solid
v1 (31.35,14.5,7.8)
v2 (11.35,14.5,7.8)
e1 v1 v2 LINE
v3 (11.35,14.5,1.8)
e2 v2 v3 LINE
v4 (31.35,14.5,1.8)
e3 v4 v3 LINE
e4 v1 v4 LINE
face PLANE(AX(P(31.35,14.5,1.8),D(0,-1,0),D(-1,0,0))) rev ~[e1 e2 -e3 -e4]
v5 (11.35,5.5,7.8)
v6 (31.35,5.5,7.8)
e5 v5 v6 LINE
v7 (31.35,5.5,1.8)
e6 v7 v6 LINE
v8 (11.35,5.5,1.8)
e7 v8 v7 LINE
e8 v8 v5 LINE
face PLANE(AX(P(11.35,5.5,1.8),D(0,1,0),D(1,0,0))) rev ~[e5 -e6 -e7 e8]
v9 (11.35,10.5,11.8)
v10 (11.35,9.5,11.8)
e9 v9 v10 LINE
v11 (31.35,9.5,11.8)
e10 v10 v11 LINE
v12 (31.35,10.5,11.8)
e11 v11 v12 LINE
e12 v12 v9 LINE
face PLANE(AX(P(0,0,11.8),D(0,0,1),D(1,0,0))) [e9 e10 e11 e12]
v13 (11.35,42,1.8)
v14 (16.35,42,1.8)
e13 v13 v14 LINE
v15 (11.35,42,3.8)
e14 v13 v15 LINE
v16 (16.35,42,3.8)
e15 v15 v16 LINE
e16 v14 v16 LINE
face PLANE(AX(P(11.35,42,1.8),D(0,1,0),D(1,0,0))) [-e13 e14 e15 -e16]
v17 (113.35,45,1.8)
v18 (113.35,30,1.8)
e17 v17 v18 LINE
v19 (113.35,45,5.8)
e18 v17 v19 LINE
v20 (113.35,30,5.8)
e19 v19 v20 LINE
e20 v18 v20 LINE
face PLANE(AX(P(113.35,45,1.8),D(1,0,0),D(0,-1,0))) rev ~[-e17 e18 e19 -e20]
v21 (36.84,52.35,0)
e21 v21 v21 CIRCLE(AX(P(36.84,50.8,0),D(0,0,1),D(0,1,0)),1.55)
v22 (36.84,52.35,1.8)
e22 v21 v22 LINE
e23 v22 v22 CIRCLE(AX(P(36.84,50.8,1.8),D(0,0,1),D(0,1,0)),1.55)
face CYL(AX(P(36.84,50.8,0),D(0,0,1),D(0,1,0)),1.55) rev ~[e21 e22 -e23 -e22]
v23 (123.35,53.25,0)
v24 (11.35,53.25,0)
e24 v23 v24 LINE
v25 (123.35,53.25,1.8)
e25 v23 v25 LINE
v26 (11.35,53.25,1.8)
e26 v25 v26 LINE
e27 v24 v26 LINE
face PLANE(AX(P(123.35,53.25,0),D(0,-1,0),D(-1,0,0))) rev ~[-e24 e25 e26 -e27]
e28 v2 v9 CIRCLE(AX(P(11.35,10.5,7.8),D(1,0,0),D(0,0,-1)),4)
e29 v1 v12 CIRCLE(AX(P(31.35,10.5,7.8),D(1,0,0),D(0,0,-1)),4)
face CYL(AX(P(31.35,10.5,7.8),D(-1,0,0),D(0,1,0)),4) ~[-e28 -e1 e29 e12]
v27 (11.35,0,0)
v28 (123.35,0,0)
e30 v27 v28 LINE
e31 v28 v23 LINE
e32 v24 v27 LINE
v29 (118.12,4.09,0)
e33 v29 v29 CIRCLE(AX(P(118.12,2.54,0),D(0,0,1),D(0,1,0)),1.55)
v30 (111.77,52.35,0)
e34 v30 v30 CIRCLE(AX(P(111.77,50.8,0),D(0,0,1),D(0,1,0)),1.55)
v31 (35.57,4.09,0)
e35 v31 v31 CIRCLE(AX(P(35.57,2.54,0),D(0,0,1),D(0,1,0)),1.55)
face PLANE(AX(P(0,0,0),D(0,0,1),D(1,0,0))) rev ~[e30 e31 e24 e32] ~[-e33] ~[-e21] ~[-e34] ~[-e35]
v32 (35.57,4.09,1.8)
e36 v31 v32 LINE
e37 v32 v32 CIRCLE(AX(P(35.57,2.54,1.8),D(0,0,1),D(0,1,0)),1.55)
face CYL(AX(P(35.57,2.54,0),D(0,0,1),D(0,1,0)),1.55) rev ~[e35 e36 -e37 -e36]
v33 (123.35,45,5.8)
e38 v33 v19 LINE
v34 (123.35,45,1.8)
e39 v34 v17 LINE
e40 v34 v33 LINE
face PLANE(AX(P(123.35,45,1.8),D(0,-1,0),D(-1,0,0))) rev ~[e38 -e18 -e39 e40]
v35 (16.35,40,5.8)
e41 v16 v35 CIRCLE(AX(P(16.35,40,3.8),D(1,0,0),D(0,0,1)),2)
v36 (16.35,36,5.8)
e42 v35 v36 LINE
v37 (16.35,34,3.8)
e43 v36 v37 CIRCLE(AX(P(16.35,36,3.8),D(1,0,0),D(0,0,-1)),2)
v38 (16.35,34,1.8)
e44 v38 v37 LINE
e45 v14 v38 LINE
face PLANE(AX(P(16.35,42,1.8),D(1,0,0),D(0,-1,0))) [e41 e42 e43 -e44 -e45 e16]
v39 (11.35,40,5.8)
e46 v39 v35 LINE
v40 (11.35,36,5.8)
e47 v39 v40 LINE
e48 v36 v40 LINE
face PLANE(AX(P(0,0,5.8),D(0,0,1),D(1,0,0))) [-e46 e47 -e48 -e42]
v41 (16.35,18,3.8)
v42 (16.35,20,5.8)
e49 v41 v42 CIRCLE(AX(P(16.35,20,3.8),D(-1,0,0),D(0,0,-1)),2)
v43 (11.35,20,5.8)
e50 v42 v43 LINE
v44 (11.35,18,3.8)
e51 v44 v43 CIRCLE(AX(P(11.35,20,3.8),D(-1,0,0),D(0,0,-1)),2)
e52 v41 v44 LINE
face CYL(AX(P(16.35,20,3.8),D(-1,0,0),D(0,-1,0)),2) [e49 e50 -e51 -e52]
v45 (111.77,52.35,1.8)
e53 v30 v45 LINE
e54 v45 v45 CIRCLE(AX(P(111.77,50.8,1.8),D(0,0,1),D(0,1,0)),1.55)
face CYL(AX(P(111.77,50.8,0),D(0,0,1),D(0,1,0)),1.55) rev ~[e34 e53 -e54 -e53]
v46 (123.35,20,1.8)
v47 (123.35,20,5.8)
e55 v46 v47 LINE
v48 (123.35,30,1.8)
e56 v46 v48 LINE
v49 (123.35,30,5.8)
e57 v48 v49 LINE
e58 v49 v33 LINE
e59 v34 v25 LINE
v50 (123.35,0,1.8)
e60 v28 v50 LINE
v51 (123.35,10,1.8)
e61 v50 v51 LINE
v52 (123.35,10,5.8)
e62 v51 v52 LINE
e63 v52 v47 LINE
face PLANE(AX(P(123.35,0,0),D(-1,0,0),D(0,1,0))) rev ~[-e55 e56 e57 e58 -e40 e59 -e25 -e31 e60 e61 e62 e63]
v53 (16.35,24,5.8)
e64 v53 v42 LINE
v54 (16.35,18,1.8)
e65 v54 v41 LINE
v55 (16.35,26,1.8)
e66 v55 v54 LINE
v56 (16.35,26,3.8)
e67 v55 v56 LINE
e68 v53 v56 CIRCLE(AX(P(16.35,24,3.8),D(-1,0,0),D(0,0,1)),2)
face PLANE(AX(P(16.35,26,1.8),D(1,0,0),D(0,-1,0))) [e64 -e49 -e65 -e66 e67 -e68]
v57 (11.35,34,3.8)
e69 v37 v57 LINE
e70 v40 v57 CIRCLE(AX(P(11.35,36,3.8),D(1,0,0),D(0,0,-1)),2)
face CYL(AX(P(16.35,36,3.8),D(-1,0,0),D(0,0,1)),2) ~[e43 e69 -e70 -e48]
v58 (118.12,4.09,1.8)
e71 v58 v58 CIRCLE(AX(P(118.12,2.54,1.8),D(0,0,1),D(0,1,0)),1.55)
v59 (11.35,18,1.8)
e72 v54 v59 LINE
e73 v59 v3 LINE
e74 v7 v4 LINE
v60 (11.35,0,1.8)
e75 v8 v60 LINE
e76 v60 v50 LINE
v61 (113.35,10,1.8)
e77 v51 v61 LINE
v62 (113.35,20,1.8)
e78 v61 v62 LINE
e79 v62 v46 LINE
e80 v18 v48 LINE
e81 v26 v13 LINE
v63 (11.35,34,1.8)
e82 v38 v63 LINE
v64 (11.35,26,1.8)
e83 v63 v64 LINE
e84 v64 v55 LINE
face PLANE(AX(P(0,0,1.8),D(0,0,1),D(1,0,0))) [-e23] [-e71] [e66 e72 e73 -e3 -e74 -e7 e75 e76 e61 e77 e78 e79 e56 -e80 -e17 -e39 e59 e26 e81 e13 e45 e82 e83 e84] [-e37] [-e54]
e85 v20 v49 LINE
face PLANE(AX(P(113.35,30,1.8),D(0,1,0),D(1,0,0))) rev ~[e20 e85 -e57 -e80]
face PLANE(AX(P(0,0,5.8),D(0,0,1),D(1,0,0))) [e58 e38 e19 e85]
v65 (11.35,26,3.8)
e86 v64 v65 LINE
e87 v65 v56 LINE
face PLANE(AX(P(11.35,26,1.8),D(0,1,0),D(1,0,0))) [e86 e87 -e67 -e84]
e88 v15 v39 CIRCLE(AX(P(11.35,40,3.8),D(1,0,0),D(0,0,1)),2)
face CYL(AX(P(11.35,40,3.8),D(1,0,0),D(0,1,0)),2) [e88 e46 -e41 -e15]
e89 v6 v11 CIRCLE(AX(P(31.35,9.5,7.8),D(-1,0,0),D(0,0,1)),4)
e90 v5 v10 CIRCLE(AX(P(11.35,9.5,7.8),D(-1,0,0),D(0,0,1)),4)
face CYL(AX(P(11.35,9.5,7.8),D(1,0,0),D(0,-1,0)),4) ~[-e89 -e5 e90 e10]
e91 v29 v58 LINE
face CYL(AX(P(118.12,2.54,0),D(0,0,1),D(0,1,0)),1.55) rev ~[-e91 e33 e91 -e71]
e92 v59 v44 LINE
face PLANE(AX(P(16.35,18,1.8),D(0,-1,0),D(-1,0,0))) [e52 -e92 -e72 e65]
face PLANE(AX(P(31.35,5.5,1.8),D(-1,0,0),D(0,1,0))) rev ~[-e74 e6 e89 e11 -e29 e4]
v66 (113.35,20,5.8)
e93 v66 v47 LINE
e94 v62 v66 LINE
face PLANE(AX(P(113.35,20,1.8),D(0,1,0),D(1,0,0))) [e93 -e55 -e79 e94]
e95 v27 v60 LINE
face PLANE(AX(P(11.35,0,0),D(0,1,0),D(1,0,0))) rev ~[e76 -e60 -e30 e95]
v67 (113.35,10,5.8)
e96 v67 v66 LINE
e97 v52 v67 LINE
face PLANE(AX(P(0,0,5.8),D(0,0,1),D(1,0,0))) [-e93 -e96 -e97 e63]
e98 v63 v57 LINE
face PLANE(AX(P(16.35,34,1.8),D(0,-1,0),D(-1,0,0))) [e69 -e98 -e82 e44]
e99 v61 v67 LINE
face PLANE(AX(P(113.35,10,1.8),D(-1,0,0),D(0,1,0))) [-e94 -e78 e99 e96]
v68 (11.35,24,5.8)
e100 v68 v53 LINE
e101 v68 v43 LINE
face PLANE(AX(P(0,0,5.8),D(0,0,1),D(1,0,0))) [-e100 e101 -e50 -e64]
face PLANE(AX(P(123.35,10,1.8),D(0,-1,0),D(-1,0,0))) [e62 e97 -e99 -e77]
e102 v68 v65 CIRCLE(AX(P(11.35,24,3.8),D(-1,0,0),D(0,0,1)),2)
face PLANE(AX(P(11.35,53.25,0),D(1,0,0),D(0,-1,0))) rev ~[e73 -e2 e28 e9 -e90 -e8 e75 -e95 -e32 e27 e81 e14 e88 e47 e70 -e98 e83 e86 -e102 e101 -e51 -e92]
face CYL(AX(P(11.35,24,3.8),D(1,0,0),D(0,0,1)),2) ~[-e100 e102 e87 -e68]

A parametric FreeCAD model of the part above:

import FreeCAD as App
import Part
import Sketcher

V = App.Vector
Q = App.Units.Quantity


def edges_at(feature, points):
    """Names of the edges that pass closest to the given points."""
    edges = feature.Shape.Edges
    near = lambda p: min(range(len(edges)), key=lambda i: edges[i].distToShape(Part.Vertex(*p))[0])
    return sorted({f"Edge{near(p) + 1}" for p in points})

doc = App.newDocument("Part")
body = doc.addObject("PartDesign::Body", "Body")

# Sketch on XY plane
sketch1 = body.newObject("Sketcher::SketchObject", "Sketch")
sketch1.AttachmentSupport = (doc.getObject("XY_Plane"), [""])
sketch1.MapMode = "FlatFace"
sketch1.addGeometry([
    Part.LineSegment(V(11, 53, 0), V(11, 0, 0)),
    Part.LineSegment(V(11, 0, 0), V(123, 0, 0)),
    Part.LineSegment(V(123, 0, 0), V(123, 53, 0)),
    Part.LineSegment(V(123, 53, 0), V(11, 53, 0)),
], False)
sketch1.addConstraint([
    Sketcher.Constraint("Coincident", 0, 2, 1, 1),
    Sketcher.Constraint("Coincident", 1, 2, 2, 1),
    Sketcher.Constraint("Coincident", 2, 2, 3, 1),
    Sketcher.Constraint("Coincident", 3, 2, 0, 1),
    Sketcher.Constraint("Vertical", 0),
    Sketcher.Constraint("Horizontal", 1),
    Sketcher.Constraint("Vertical", 2),
    Sketcher.Constraint("Horizontal", 3),
    Sketcher.Constraint("PointOnObject", 0, 2, -1),
    Sketcher.Constraint("DistanceX", 1, 1, 1, 2, Q("112 mm")),
    Sketcher.Constraint("DistanceY", 0, 2, 0, 1, Q("53.25 mm")),
    Sketcher.Constraint("DistanceX", -1, 1, 0, 2, Q("11.35 mm")),
])
pad1 = body.newObject("PartDesign::Pad", "Pad")
pad1.Profile = sketch1
pad1.Length = 1.8

# Sketch on XY plane
sketch2 = body.newObject("Sketcher::SketchObject", "Sketch001")
sketch2.AttachmentSupport = (doc.getObject("XY_Plane"), [""])
sketch2.MapMode = "FlatFace"
sketch2.addGeometry([
    Part.Circle(V(36.8, 50.8, 0), V(0, 0, 1), 1.6),
    Part.Circle(V(111.8, 50.8, 0), V(0, 0, 1), 1.6),
    Part.Circle(V(118.1, 2.5, 0), V(0, 0, 1), 1.6),
    Part.Circle(V(35.6, 2.5, 0), V(0, 0, 1), 1.6),
], False)
sketch2.addConstraint([
    Sketcher.Constraint("Equal", 0, 1),
    Sketcher.Constraint("Equal", 1, 2),
    Sketcher.Constraint("Equal", 2, 3),
    Sketcher.Constraint("Horizontal", 0, 3, 1, 3),
    Sketcher.Constraint("Horizontal", 2, 3, 3, 3),
    Sketcher.Constraint("Diameter", 0, Q("3.1 mm")),
    Sketcher.Constraint("DistanceY", -1, 1, 0, 3, Q("50.8 mm")),
    Sketcher.Constraint("DistanceX", 3, 3, 1, 3, Q("76.2 mm")),
    Sketcher.Constraint("DistanceX", -1, 1, 0, 3, Q("36.84 mm")),
    Sketcher.Constraint("DistanceX", -1, 1, 1, 3, Q("111.77 mm")),
    Sketcher.Constraint("DistanceX", -1, 1, 2, 3, Q("118.12 mm")),
    Sketcher.Constraint("DistanceY", -1, 1, 2, 3, Q("2.54 mm")),
])
doc.recompute()
hole = body.newObject("PartDesign::Hole", "Hole")
hole.Profile = sketch2
hole.ThreadType = "None"
hole.Diameter = 3.1
hole.DepthType = "ThroughAll"
hole.Reversed = True

# Sketch on XY plane
sketch3 = body.newObject("Sketcher::SketchObject", "Sketch002")
sketch3.AttachmentSupport = (doc.getObject("XY_Plane"), [""])
sketch3.MapMode = "FlatFace"
sketch3.AttachmentOffset = App.Placement(V(0, 0, 1.8), App.Rotation())
sketch3.addGeometry([
    Part.LineSegment(V(113, 30, 0), V(123, 30, 0)),  # 0
    Part.LineSegment(V(123, 30, 0), V(123, 45, 0)),  # 1
    Part.LineSegment(V(123, 45, 0), V(113, 45, 0)),  # 2
    Part.LineSegment(V(113, 45, 0), V(113, 30, 0)),  # 3
    Part.LineSegment(V(113, 10, 0), V(123, 10, 0)),  # 4
    Part.LineSegment(V(123, 10, 0), V(123, 20, 0)),  # 5
    Part.LineSegment(V(123, 20, 0), V(113, 20, 0)),  # 6
    Part.LineSegment(V(113, 20, 0), V(113, 10, 0)),  # 7
    Part.LineSegment(V(11, 42, 0), V(11, 34, 0)),  # 8
    Part.LineSegment(V(11, 34, 0), V(16, 34, 0)),  # 9
    Part.LineSegment(V(16, 34, 0), V(16, 42, 0)),  # 10
    Part.LineSegment(V(16, 42, 0), V(11, 42, 0)),  # 11
    Part.LineSegment(V(11, 26, 0), V(11, 18, 0)),  # 12
    Part.LineSegment(V(11, 18, 0), V(16, 18, 0)),  # 13
    Part.LineSegment(V(16, 18, 0), V(16, 26, 0)),  # 14
    Part.LineSegment(V(16, 26, 0), V(11, 26, 0)),  # 15
    Part.LineSegment(V(11, 14, 0), V(11, 6, 0)),  # 16
    Part.LineSegment(V(11, 6, 0), V(31, 6, 0)),  # 17
    Part.LineSegment(V(31, 6, 0), V(31, 14, 0)),  # 18
    Part.LineSegment(V(31, 14, 0), V(11, 14, 0)),  # 19
], False)
sketch3.addConstraint([
    Sketcher.Constraint("Coincident", 0, 2, 1, 1),
    Sketcher.Constraint("Coincident", 1, 2, 2, 1),
    Sketcher.Constraint("Coincident", 2, 2, 3, 1),
    Sketcher.Constraint("Coincident", 3, 2, 0, 1),
    Sketcher.Constraint("Coincident", 4, 2, 5, 1),
    Sketcher.Constraint("Coincident", 5, 2, 6, 1),
    Sketcher.Constraint("Coincident", 6, 2, 7, 1),
    Sketcher.Constraint("Coincident", 7, 2, 4, 1),
    Sketcher.Constraint("Coincident", 8, 2, 9, 1),
    Sketcher.Constraint("Coincident", 9, 2, 10, 1),
    Sketcher.Constraint("Coincident", 10, 2, 11, 1),
    Sketcher.Constraint("Coincident", 11, 2, 8, 1),
    Sketcher.Constraint("Coincident", 12, 2, 13, 1),
    Sketcher.Constraint("Coincident", 13, 2, 14, 1),
    Sketcher.Constraint("Coincident", 14, 2, 15, 1),
    Sketcher.Constraint("Coincident", 15, 2, 12, 1),
    Sketcher.Constraint("Coincident", 16, 2, 17, 1),
    Sketcher.Constraint("Coincident", 17, 2, 18, 1),
    Sketcher.Constraint("Coincident", 18, 2, 19, 1),
    Sketcher.Constraint("Coincident", 19, 2, 16, 1),
    Sketcher.Constraint("Horizontal", 0),
    Sketcher.Constraint("Vertical", 1),
    Sketcher.Constraint("Horizontal", 2),
    Sketcher.Constraint("Vertical", 3),
    Sketcher.Constraint("Horizontal", 4),
    Sketcher.Constraint("Vertical", 5),
    Sketcher.Constraint("Horizontal", 6),
    Sketcher.Constraint("Vertical", 7),
    Sketcher.Constraint("Vertical", 8),
    Sketcher.Constraint("Horizontal", 9),
    Sketcher.Constraint("Vertical", 10),
    Sketcher.Constraint("Horizontal", 11),
    Sketcher.Constraint("Vertical", 12),
    Sketcher.Constraint("Horizontal", 13),
    Sketcher.Constraint("Vertical", 14),
    Sketcher.Constraint("Horizontal", 15),
    Sketcher.Constraint("Vertical", 16),
    Sketcher.Constraint("Horizontal", 17),
    Sketcher.Constraint("Vertical", 18),
    Sketcher.Constraint("Horizontal", 19),
    Sketcher.Constraint("Vertical", 1, 2, 4, 2),
    Sketcher.Constraint("Vertical", 3, 2, 6, 2),
    Sketcher.Constraint("Vertical", 11, 2, 12, 2),
    Sketcher.Constraint("Vertical", 10, 2, 13, 2),
    Sketcher.Constraint("Vertical", 15, 2, 16, 2),
    Sketcher.Constraint("Equal", 6, 5),
    Sketcher.Constraint("Equal", 10, 12),
    Sketcher.Constraint("DistanceX", 0, 1, 0, 2, Q("10 mm")),
    Sketcher.Constraint("DistanceX", 9, 1, 9, 2, Q("5 mm")),
    Sketcher.Constraint("DistanceX", 17, 1, 17, 2, Q("20 mm")),
    Sketcher.Constraint("DistanceY", 1, 1, 1, 2, Q("15 mm")),
    Sketcher.Constraint("DistanceY", 8, 2, 8, 1, Q("8 mm")),
    Sketcher.Constraint("DistanceY", 16, 2, 16, 1, Q("9 mm")),
    Sketcher.Constraint("DistanceY", -1, 1, 0, 2, Q("30 mm")),
    Sketcher.Constraint("DistanceY", -1, 1, 4, 2, Q("10 mm")),
    Sketcher.Constraint("DistanceY", -1, 1, 8, 2, Q("34 mm")),
    Sketcher.Constraint("DistanceY", -1, 1, 12, 2, Q("18 mm")),
    Sketcher.Constraint("DistanceY", -1, 1, 16, 2, Q("5.5 mm")),
    Sketcher.Constraint("DistanceX", 8, 2, 3, 2, Q("102 mm")),
    Sketcher.Constraint("DistanceX", -1, 1, 0, 2, Q("123.35 mm")),
])
pad2 = body.newObject("PartDesign::Pad", "Pad001")
pad2.Profile = sketch3
pad2.Length = 4

# Sketch on XY plane
sketch4 = body.newObject("Sketcher::SketchObject", "Sketch003")
sketch4.AttachmentSupport = (doc.getObject("XY_Plane"), [""])
sketch4.MapMode = "FlatFace"
sketch4.AttachmentOffset = App.Placement(V(0, 0, 1.8), App.Rotation())
sketch4.addGeometry([
    Part.LineSegment(V(11, 14, 0), V(11, 6, 0)),
    Part.LineSegment(V(11, 6, 0), V(31, 6, 0)),
    Part.LineSegment(V(31, 6, 0), V(31, 14, 0)),
    Part.LineSegment(V(31, 14, 0), V(11, 14, 0)),
], False)
sketch4.addConstraint([
    Sketcher.Constraint("Coincident", 0, 2, 1, 1),
    Sketcher.Constraint("Coincident", 1, 2, 2, 1),
    Sketcher.Constraint("Coincident", 2, 2, 3, 1),
    Sketcher.Constraint("Coincident", 3, 2, 0, 1),
    Sketcher.Constraint("Vertical", 0),
    Sketcher.Constraint("Horizontal", 1),
    Sketcher.Constraint("Vertical", 2),
    Sketcher.Constraint("Horizontal", 3),
    Sketcher.Constraint("DistanceX", 1, 1, 1, 2, Q("20 mm")),
    Sketcher.Constraint("DistanceY", 0, 2, 0, 1, Q("9 mm")),
    Sketcher.Constraint("DistanceY", -1, 1, 0, 2, Q("5.5 mm")),
    Sketcher.Constraint("DistanceX", -1, 1, 0, 2, Q("11.35 mm")),
])
pad3 = body.newObject("PartDesign::Pad", "Pad002")
pad3.Profile = sketch4
pad3.Length = 10
doc.recompute()

fillet = body.newObject("PartDesign::Fillet", "Fillet")
fillet.Base = (pad3, edges_at(pad3, [(21.35, 14.5, 11.8), (21.35, 5.5, 11.8)]))
fillet.Radius = 4
doc.recompute()

fillet2 = body.newObject("PartDesign::Fillet", "Fillet001")
fillet2.Base = (fillet, edges_at(fillet, [
    (13.85, 26, 5.8),
    (13.85, 18, 5.8),
    (13.85, 34, 5.8),
    (13.85, 42, 5.8),
]))
fillet2.Radius = 2

doc.recompute()
